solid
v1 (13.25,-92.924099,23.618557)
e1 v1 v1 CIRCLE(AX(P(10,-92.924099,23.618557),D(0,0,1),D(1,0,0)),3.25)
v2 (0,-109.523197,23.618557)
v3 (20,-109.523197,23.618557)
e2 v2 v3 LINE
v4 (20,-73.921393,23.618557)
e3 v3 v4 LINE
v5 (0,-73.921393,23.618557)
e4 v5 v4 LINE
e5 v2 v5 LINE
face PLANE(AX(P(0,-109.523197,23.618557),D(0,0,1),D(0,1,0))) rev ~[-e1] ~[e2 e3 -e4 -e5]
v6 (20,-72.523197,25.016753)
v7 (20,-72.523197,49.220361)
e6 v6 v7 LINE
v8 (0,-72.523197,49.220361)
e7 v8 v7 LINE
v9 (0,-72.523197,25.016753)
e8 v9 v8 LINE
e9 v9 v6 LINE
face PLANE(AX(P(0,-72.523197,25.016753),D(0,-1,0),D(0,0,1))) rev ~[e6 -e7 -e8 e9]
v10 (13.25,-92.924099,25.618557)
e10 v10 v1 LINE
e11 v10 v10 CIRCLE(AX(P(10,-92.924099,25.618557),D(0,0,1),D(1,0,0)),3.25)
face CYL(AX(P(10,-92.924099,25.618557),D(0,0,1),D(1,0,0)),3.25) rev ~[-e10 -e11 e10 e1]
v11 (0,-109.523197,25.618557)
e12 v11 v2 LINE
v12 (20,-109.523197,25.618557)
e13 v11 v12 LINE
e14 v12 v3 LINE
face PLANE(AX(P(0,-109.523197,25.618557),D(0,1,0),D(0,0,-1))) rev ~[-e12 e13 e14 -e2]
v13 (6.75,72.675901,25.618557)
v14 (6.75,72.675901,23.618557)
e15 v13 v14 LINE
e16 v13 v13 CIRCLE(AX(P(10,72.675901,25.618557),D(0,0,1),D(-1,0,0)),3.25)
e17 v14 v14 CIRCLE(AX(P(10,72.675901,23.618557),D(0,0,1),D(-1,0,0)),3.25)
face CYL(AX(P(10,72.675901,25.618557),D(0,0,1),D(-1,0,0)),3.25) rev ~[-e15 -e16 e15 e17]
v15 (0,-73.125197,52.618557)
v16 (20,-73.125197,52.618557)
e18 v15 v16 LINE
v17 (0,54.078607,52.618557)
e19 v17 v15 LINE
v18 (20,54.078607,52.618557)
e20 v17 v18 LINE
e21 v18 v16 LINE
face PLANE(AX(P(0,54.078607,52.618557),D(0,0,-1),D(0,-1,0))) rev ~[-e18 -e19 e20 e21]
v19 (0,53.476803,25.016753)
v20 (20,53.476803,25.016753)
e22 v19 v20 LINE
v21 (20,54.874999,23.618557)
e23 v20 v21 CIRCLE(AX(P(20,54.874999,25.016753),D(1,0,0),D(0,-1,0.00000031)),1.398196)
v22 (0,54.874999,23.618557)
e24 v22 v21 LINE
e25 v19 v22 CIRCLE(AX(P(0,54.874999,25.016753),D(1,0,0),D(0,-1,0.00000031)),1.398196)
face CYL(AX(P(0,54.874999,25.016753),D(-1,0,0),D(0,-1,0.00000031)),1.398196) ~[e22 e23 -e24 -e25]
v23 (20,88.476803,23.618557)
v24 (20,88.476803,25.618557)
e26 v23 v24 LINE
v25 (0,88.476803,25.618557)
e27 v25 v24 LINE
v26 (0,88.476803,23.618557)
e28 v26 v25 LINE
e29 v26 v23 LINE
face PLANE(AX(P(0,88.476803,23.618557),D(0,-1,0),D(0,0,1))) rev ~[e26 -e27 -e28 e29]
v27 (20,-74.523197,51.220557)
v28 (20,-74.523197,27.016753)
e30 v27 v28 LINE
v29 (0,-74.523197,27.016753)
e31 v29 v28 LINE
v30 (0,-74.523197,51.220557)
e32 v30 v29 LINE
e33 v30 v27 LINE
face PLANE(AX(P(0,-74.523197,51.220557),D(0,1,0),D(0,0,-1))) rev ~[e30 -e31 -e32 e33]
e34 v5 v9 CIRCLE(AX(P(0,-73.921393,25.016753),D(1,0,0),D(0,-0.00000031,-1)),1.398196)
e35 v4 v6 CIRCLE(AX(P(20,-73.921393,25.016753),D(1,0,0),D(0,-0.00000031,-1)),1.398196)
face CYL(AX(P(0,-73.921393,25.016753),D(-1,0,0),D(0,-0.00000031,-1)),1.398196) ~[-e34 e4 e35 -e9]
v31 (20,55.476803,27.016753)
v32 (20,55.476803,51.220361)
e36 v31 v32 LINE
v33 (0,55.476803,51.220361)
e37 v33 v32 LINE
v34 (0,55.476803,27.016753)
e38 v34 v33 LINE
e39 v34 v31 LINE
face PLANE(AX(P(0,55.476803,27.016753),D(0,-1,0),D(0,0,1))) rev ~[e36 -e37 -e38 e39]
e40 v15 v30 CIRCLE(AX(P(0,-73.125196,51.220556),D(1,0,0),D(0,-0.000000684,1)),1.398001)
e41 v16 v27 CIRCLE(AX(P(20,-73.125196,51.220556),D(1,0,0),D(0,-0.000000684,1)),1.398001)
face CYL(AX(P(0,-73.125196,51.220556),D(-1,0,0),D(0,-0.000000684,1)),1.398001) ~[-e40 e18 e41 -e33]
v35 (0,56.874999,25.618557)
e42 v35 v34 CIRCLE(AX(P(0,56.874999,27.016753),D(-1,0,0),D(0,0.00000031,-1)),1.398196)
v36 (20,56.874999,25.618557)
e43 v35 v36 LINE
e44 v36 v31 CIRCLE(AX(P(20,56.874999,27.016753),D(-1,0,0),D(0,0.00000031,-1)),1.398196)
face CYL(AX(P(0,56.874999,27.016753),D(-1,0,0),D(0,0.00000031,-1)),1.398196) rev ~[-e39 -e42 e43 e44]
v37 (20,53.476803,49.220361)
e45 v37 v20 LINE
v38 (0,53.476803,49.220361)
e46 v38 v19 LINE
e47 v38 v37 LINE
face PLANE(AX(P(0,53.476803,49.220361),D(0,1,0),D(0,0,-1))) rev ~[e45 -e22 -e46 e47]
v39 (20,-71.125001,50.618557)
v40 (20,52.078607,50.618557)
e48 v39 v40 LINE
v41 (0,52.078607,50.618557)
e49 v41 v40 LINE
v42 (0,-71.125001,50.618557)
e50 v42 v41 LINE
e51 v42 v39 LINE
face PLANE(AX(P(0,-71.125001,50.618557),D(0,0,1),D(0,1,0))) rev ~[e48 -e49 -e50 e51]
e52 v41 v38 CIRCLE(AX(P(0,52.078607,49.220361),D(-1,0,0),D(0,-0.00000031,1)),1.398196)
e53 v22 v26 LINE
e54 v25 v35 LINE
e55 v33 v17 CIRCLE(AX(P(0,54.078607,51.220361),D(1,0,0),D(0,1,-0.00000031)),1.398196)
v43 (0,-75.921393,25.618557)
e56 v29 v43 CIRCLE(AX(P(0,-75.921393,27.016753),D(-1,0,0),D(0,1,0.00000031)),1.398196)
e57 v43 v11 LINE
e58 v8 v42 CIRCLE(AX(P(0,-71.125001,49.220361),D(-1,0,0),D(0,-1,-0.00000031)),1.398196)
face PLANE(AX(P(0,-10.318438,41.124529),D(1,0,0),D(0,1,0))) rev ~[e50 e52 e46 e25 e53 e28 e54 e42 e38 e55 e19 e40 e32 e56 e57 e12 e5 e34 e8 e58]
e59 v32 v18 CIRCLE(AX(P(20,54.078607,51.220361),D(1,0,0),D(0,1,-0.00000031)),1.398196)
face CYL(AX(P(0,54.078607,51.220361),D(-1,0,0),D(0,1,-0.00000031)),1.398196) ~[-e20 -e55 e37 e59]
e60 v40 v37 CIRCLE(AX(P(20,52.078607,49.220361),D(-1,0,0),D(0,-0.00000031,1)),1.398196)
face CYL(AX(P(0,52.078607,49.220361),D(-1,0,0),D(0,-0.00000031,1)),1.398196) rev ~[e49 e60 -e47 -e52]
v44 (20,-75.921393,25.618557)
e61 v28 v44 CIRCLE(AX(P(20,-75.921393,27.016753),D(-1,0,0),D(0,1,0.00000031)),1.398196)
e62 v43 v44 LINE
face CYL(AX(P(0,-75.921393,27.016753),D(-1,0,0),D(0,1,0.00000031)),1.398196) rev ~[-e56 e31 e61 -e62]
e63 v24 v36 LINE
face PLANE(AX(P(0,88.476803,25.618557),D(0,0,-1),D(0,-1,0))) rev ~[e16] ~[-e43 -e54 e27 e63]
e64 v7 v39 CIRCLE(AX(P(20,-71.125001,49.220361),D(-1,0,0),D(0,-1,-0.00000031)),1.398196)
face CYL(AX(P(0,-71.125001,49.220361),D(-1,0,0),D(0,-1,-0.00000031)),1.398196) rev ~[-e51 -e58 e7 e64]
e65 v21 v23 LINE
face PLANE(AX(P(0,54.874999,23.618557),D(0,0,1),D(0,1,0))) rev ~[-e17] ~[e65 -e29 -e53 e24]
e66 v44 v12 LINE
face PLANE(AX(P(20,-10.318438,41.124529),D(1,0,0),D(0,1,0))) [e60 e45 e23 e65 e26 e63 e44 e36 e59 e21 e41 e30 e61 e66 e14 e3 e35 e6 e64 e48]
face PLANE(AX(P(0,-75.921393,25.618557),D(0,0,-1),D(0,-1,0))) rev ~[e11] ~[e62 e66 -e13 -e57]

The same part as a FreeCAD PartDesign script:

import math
import FreeCAD as App
import Part
import Sketcher
from FreeCAD import Vector
Q = App.Units.Quantity

doc = App.newDocument("Part")
params = doc.addObject("Spreadsheet::Sheet", "Params")
for row, (alias, value) in enumerate([
    ("sketch1_height", "2 mm"),
    ("pad1_length", "20 mm"),
    ("sketch2_diameter", "6.5 mm"),
    ("pocket1_length", "25 mm"),
], start=1):
    params.set(f"A{row}", alias)
    params.set(f"B{row}", "=" + value)
    params.setAlias(f"B{row}", alias)

body = doc.addObject("PartDesign::Body", "Body")

# Sketch on YZ plane
sketch1 = body.newObject("Sketcher::SketchObject", "Sketch")
sketch1.AttachmentSupport = (doc.getObject("YZ_Plane"), [""])
sketch1.MapMode = "FlatFace"
sketch1.addGeometry([
    Part.LineSegment(Vector(-109.5, 25.6, 0), Vector(-109.5, 23.6, 0)),  # 0
    Part.LineSegment(Vector(-109.5, 23.6, 0), Vector(-73.9, 23.6, 0)),  # 1
    Part.ArcOfCircle(Part.Circle(Vector(-73.9, 25, 0), Vector(0, 0, 1), 1.4), math.radians(-90), math.radians(0)),  # 2
    Part.LineSegment(Vector(-72.5, 25, 0), Vector(-72.5, 49.2, 0)),  # 3
    Part.ArcOfCircle(Part.Circle(Vector(-71.1, 49.2, 0), Vector(0, 0, 1), 1.4), math.radians(90), math.radians(180)),  # 4
    Part.LineSegment(Vector(-71.1, 50.6, 0), Vector(52.1, 50.6, 0)),  # 5
    Part.ArcOfCircle(Part.Circle(Vector(52.1, 49.2, 0), Vector(0, 0, 1), 1.4), math.radians(0), math.radians(90)),  # 6
    Part.LineSegment(Vector(53.5, 49.2, 0), Vector(53.5, 25, 0)),  # 7
    Part.ArcOfCircle(Part.Circle(Vector(54.9, 25, 0), Vector(0, 0, 1), 1.4), math.radians(180), math.radians(270)),  # 8
    Part.LineSegment(Vector(54.9, 23.6, 0), Vector(88.5, 23.6, 0)),  # 9
    Part.LineSegment(Vector(88.5, 23.6, 0), Vector(88.5, 25.6, 0)),  # 10
    Part.LineSegment(Vector(88.5, 25.6, 0), Vector(56.9, 25.6, 0)),  # 11
    Part.ArcOfCircle(Part.Circle(Vector(56.9, 27, 0), Vector(0, 0, 1), 1.4), math.radians(180), math.radians(270)),  # 12
    Part.LineSegment(Vector(55.5, 27, 0), Vector(55.5, 51.2, 0)),  # 13
    Part.ArcOfCircle(Part.Circle(Vector(54.1, 51.2, 0), Vector(0, 0, 1), 1.4), math.radians(0), math.radians(90)),  # 14
    Part.LineSegment(Vector(54.1, 52.6, 0), Vector(-73.1, 52.6, 0)),  # 15
    Part.ArcOfCircle(Part.Circle(Vector(-73.1, 51.2, 0), Vector(0, 0, 1), 1.4), math.radians(90), math.radians(180)),  # 16
    Part.LineSegment(Vector(-74.5, 51.2, 0), Vector(-74.5, 27, 0)),  # 17
    Part.ArcOfCircle(Part.Circle(Vector(-75.9, 27, 0), Vector(0, 0, 1), 1.4), math.radians(-90), math.radians(0)),  # 18
    Part.LineSegment(Vector(-75.9, 25.6, 0), Vector(-109.5, 25.6, 0)),  # 19
], False)
sketch1.addConstraint([
    Sketcher.Constraint("Coincident", 0, 2, 1, 1),
    Sketcher.Constraint("Tangent", 1, 2, 2, 1),
    Sketcher.Constraint("Tangent", 2, 2, 3, 1),
    Sketcher.Constraint("Tangent", 3, 2, 4, 2),
    Sketcher.Constraint("Tangent", 4, 1, 5, 1),
    Sketcher.Constraint("Tangent", 5, 2, 6, 2),
    Sketcher.Constraint("Tangent", 6, 1, 7, 1),
    Sketcher.Constraint("Tangent", 7, 2, 8, 1),
    Sketcher.Constraint("Tangent", 8, 2, 9, 1),
    Sketcher.Constraint("Coincident", 9, 2, 10, 1),
    Sketcher.Constraint("Coincident", 10, 2, 11, 1),
    Sketcher.Constraint("Tangent", 11, 2, 12, 2),
    Sketcher.Constraint("Tangent", 12, 1, 13, 1),
    Sketcher.Constraint("Tangent", 13, 2, 14, 1),
    Sketcher.Constraint("Tangent", 14, 2, 15, 1),
    Sketcher.Constraint("Tangent", 15, 2, 16, 1),
    Sketcher.Constraint("Tangent", 16, 2, 17, 1),
    Sketcher.Constraint("Tangent", 17, 2, 18, 2),
    Sketcher.Constraint("Tangent", 18, 1, 19, 1),
    Sketcher.Constraint("Coincident", 19, 2, 0, 1),
    Sketcher.Constraint("Vertical", 0),
    Sketcher.Constraint("Horizontal", 1),
    Sketcher.Constraint("Vertical", 3),
    Sketcher.Constraint("Horizontal", 5),
    Sketcher.Constraint("Vertical", 7),
    Sketcher.Constraint("Horizontal", 9),
    Sketcher.Constraint("Vertical", 10),
    Sketcher.Constraint("Horizontal", 11),
    Sketcher.Constraint("Vertical", 13),
    Sketcher.Constraint("Horizontal", 15),
    Sketcher.Constraint("Vertical", 17),
    Sketcher.Constraint("Horizontal", 19),
    Sketcher.Constraint("Equal", 2, 4),
    Sketcher.Constraint("Equal", 4, 6),
    Sketcher.Constraint("Equal", 6, 8),
    Sketcher.Constraint("Equal", 8, 12),
    Sketcher.Constraint("Equal", 12, 14),
    Sketcher.Constraint("Equal", 14, 18),
    Sketcher.Constraint("Horizontal", 2, 3, 8, 3),
    Sketcher.Constraint("Horizontal", 12, 3, 18, 3),
    Sketcher.Constraint("Equal", 9, 19),
    Sketcher.Constraint("Equal", 7, 13),
    Sketcher.Constraint("DistanceY", 0, 2, 0, 1, Q("2 mm")),
    Sketcher.Constraint("Radius", 16, Q("1.398001 mm")),
    Sketcher.Constraint("DistanceX", 2, 3, 6, 3, Q("126 mm")),
    Sketcher.Constraint("DistanceX", 8, 3, 12, 3, Q("2 mm")),
    Sketcher.Constraint("DistanceX", 18, 3, 2, 3, Q("2 mm")),
    Sketcher.Constraint("DistanceX", 7, 2, 9, 2, Q("35 mm")),
    Sketcher.Constraint("DistanceX", 4, 3, -1, 1, Q("71.125001 mm")),
    Sketcher.Constraint("Radius", 2, Q("1.398196 mm")),
    Sketcher.Constraint("DistanceY", 0, 2, 16, 3, Q("27.601999 mm")),
    Sketcher.Constraint("DistanceY", -1, 1, 4, 3, Q("49.220361 mm")),
])
sketch1.setExpression("Constraints[42]", "Params.sketch1_height")
pad1 = body.newObject("PartDesign::Pad", "Pad")
pad1.Profile = sketch1
pad1.setExpression("Length", "Params.pad1_length")

# Sketch on XY plane
sketch2 = body.newObject("Sketcher::SketchObject", "Sketch001")
sketch2.AttachmentSupport = (doc.getObject("XY_Plane"), [""])
sketch2.MapMode = "FlatFace"
sketch2.AttachmentOffset = App.Placement(Vector(0, 0, 25.618557), App.Rotation())
sketch2.addGeometry([
    Part.Circle(Vector(10, 72.7, 0), Vector(0, 0, 1), 3.2),
    Part.Circle(Vector(10, -92.9, 0), Vector(0, 0, 1), 3.2),
], False)
sketch2.addConstraint([
    Sketcher.Constraint("Equal", 0, 1),
    Sketcher.Constraint("Vertical", 0, 3, 1, 3),
    Sketcher.Constraint("Diameter", 0, Q("6.5 mm")),
    Sketcher.Constraint("DistanceX", -1, 1, 0, 3, Q("10 mm")),
    Sketcher.Constraint("DistanceY", 1, 3, 0, 3, Q("165.6 mm")),
    Sketcher.Constraint("DistanceY", -1, 1, 0, 3, Q("72.675901 mm")),
])
sketch2.setExpression("Constraints[2]", "Params.sketch2_diameter")
pocket1 = body.newObject("PartDesign::Pocket", "Pocket")
pocket1.Profile = sketch2
pocket1.setExpression("Length", "Params.pocket1_length")

doc.recompute()
